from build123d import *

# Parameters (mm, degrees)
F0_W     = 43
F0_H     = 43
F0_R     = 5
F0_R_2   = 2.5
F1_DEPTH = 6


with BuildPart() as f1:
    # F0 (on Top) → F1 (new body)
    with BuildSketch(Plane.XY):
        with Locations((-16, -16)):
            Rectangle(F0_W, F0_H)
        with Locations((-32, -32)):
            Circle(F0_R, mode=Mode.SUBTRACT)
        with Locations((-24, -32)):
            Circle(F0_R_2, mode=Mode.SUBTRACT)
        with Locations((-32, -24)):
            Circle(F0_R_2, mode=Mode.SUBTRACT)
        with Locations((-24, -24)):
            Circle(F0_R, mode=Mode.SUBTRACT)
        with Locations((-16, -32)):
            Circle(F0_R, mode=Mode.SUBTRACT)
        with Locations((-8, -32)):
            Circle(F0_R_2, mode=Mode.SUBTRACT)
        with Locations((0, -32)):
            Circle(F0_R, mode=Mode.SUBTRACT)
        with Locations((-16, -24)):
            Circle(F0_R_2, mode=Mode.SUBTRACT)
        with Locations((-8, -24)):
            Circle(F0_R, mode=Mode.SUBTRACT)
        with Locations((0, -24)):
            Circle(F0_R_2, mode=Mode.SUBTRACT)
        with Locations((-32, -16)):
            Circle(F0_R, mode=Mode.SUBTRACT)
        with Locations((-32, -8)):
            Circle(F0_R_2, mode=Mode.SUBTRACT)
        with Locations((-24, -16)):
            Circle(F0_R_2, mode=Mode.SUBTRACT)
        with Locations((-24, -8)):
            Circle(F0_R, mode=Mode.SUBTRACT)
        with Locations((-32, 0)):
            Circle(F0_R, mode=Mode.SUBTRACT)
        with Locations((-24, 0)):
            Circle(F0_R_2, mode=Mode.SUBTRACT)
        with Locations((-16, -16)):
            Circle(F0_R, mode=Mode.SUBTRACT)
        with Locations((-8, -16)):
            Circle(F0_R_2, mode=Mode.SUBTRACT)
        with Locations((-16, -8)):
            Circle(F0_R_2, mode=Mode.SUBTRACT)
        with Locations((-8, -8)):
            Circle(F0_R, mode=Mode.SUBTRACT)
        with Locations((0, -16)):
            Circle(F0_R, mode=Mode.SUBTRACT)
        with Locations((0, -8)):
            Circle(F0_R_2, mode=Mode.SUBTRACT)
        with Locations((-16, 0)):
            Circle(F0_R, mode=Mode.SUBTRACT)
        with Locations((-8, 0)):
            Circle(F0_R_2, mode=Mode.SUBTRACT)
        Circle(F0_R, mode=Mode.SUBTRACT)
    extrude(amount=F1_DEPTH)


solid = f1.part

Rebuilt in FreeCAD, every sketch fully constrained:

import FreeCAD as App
import Part
import Sketcher

doc = App.newDocument("Part")
body = doc.addObject("PartDesign::Body", "Body")

sketch1 = body.newObject("Sketcher::SketchObject", "Sketch")
sketch1.AttachmentSupport = (doc.getObject("XY_Plane"), [""])
sketch1.MapMode = "FlatFace"
sketch1.addGeometry([
    Part.LineSegment(App.Vector(-37.5, 5.5, 0), App.Vector(-37.5, -37.5, 0)),
    Part.LineSegment(App.Vector(-37.5, -37.5, 0), App.Vector(5.5, -37.5, 0)),
    Part.LineSegment(App.Vector(5.5, -37.5, 0), App.Vector(5.5, 5.5, 0)),
    Part.LineSegment(App.Vector(5.5, 5.5, 0), App.Vector(-37.5, 5.5, 0)),
    Part.Circle(App.Vector(-32, -32, 0), App.Vector(0, 0, 1), 5),
    Part.Circle(App.Vector(-24, -32, 0), App.Vector(0, 0, 1), 2.5),
    Part.Circle(App.Vector(-32, -24, 0), App.Vector(0, 0, 1), 2.5),
    Part.Circle(App.Vector(-24, -24, 0), App.Vector(0, 0, 1), 5),
    Part.Circle(App.Vector(-16, -32, 0), App.Vector(0, 0, 1), 5),
    Part.Circle(App.Vector(-8, -32, 0), App.Vector(0, 0, 1), 2.5),
    Part.Circle(App.Vector(0, -32, 0), App.Vector(0, 0, 1), 5),
    Part.Circle(App.Vector(-16, -24, 0), App.Vector(0, 0, 1), 2.5),
    Part.Circle(App.Vector(-8, -24, 0), App.Vector(0, 0, 1), 5),
    Part.Circle(App.Vector(0, -24, 0), App.Vector(0, 0, 1), 2.5),
    Part.Circle(App.Vector(-32, -16, 0), App.Vector(0, 0, 1), 5),
    Part.Circle(App.Vector(-32, -8, 0), App.Vector(0, 0, 1), 2.5),
    Part.Circle(App.Vector(-24, -16, 0), App.Vector(0, 0, 1), 2.5),
    Part.Circle(App.Vector(-24, -8, 0), App.Vector(0, 0, 1), 5),
    Part.Circle(App.Vector(-32, 0, 0), App.Vector(0, 0, 1), 5),
    Part.Circle(App.Vector(-24, 0, 0), App.Vector(0, 0, 1), 2.5),
    Part.Circle(App.Vector(-16, -16, 0), App.Vector(0, 0, 1), 5),
    Part.Circle(App.Vector(-8, -16, 0), App.Vector(0, 0, 1), 2.5),
    Part.Circle(App.Vector(-16, -8, 0), App.Vector(0, 0, 1), 2.5),
    Part.Circle(App.Vector(-8, -8, 0), App.Vector(0, 0, 1), 5),
    Part.Circle(App.Vector(0, -16, 0), App.Vector(0, 0, 1), 5),
    Part.Circle(App.Vector(0, -8, 0), App.Vector(0, 0, 1), 2.5),
    Part.Circle(App.Vector(-16, 0, 0), App.Vector(0, 0, 1), 5),
    Part.Circle(App.Vector(-8, 0, 0), App.Vector(0, 0, 1), 2.5),
    Part.Circle(App.Vector(0, 0, 0), App.Vector(0, 0, 1), 5),
], False)
sketch1.addConstraint([
    Sketcher.Constraint("Coincident", 0, 2, 1, 1),
    Sketcher.Constraint("Coincident", 1, 2, 2, 1),
    Sketcher.Constraint("Coincident", 2, 2, 3, 1),
    Sketcher.Constraint("Coincident", 3, 2, 0, 1),
    Sketcher.Constraint("Vertical", 0),
    Sketcher.Constraint("Horizontal", 1),
    Sketcher.Constraint("Vertical", 2),
    Sketcher.Constraint("Horizontal", 3),
    Sketcher.Constraint("Coincident", 28, 3, -1, 1),
    Sketcher.Constraint("Equal", 5, 6),
    Sketcher.Constraint("Equal", 4, 7),
    Sketcher.Constraint("Equal", 7, 8),
    Sketcher.Constraint("Equal", 6, 9),
    Sketcher.Constraint("Equal", 8, 10),
    Sketcher.Constraint("Equal", 9, 11),
    Sketcher.Constraint("Equal", 10, 12),
    Sketcher.Constraint("Equal", 11, 13),
    Sketcher.Constraint("Equal", 12, 14),
    Sketcher.Constraint("Equal", 13, 15),
    Sketcher.Constraint("Equal", 15, 16),
    Sketcher.Constraint("Equal", 14, 17),
    Sketcher.Constraint("Equal", 17, 18),
    Sketcher.Constraint("Equal", 16, 19),
    Sketcher.Constraint("Equal", 18, 20),
    Sketcher.Constraint("Equal", 19, 21),
    Sketcher.Constraint("Equal", 21, 22),
    Sketcher.Constraint("Equal", 20, 23),
    Sketcher.Constraint("Equal", 23, 24),
    Sketcher.Constraint("Equal", 22, 25),
    Sketcher.Constraint("Equal", 24, 26),
    Sketcher.Constraint("Equal", 25, 27),
    Sketcher.Constraint("Equal", 26, 28),
    Sketcher.Constraint("PointOnObject", 10, 3, -2),
    Sketcher.Constraint("PointOnObject", 13, 3, -2),
    Sketcher.Constraint("PointOnObject", 18, 3, -1),
    Sketcher.Constraint("PointOnObject", 19, 3, -1),
    Sketcher.Constraint("PointOnObject", 24, 3, -2),
    Sketcher.Constraint("PointOnObject", 25, 3, -2),
    Sketcher.Constraint("PointOnObject", 26, 3, -1),
    Sketcher.Constraint("PointOnObject", 27, 3, -1),
    Sketcher.Constraint("Horizontal", 4, 3, 5, 3),
    Sketcher.Constraint("Horizontal", 6, 3, 7, 3),
    Sketcher.Constraint("Horizontal", 5, 3, 8, 3),
    Sketcher.Constraint("Horizontal", 8, 3, 9, 3),
    Sketcher.Constraint("Horizontal", 9, 3, 10, 3),
    Sketcher.Constraint("Horizontal", 7, 3, 11, 3),
    Sketcher.Constraint("Horizontal", 11, 3, 12, 3),
    Sketcher.Constraint("Horizontal", 12, 3, 13, 3),
    Sketcher.Constraint("Horizontal", 14, 3, 16, 3),
    Sketcher.Constraint("Horizontal", 15, 3, 17, 3),
    Sketcher.Constraint("Horizontal", 16, 3, 20, 3),
    Sketcher.Constraint("Horizontal", 20, 3, 21, 3),
    Sketcher.Constraint("Horizontal", 17, 3, 22, 3),
    Sketcher.Constraint("Horizontal", 22, 3, 23, 3),
    Sketcher.Constraint("Horizontal", 21, 3, 24, 3),
    Sketcher.Constraint("Horizontal", 23, 3, 25, 3),
    Sketcher.Constraint("Vertical", 4, 3, 6, 3),
    Sketcher.Constraint("Vertical", 5, 3, 7, 3),
    Sketcher.Constraint("Vertical", 8, 3, 11, 3),
    Sketcher.Constraint("Vertical", 9, 3, 12, 3),
    Sketcher.Constraint("Vertical", 6, 3, 14, 3),
    Sketcher.Constraint("Vertical", 14, 3, 15, 3),
    Sketcher.Constraint("Vertical", 7, 3, 16, 3),
    Sketcher.Constraint("Vertical", 16, 3, 17, 3),
    Sketcher.Constraint("Vertical", 15, 3, 18, 3),
    Sketcher.Constraint("Vertical", 17, 3, 19, 3),
    Sketcher.Constraint("Vertical", 11, 3, 20, 3),
    Sketcher.Constraint("Vertical", 12, 3, 21, 3),
    Sketcher.Constraint("Vertical", 20, 3, 22, 3),
    Sketcher.Constraint("Vertical", 21, 3, 23, 3),
    Sketcher.Constraint("Vertical", 22, 3, 26, 3),
    Sketcher.Constraint("Vertical", 23, 3, 27, 3),
    Sketcher.Constraint("Equal", 3, 0),
    Sketcher.Constraint("Diameter", 4, 10.0),
    Sketcher.Constraint("Diameter", 5, 5.0),
    Sketcher.Constraint("DistanceX", 1, 1, 1, 2, 43.0),
    Sketcher.Constraint("DistanceX", 4, 3, -1, 1, 32.0),
    Sketcher.Constraint("DistanceY", 4, 3, -1, 1, 32.0),
    Sketcher.Constraint("DistanceX", 5, 3, -1, 1, 24.0),
    Sketcher.Constraint("DistanceY", 6, 3, -1, 1, 24.0),
    Sketcher.Constraint("DistanceX", 8, 3, -1, 1, 16.0),
    Sketcher.Constraint("DistanceX", 9, 3, -1, 1, 8.0),
    Sketcher.Constraint("DistanceY", 14, 3, -1, 1, 16.0),
    Sketcher.Constraint("DistanceY", 15, 3, -1, 1, 8.0),
    Sketcher.Constraint("DistanceX", 0, 2, -1, 1, 37.5),
    Sketcher.Constraint("DistanceY", 0, 2, -1, 1, 37.5),
])
pad1 = body.newObject("PartDesign::Pad", "Pad")
pad1.Profile = sketch1
pad1.Length = 6

doc.recompute()
